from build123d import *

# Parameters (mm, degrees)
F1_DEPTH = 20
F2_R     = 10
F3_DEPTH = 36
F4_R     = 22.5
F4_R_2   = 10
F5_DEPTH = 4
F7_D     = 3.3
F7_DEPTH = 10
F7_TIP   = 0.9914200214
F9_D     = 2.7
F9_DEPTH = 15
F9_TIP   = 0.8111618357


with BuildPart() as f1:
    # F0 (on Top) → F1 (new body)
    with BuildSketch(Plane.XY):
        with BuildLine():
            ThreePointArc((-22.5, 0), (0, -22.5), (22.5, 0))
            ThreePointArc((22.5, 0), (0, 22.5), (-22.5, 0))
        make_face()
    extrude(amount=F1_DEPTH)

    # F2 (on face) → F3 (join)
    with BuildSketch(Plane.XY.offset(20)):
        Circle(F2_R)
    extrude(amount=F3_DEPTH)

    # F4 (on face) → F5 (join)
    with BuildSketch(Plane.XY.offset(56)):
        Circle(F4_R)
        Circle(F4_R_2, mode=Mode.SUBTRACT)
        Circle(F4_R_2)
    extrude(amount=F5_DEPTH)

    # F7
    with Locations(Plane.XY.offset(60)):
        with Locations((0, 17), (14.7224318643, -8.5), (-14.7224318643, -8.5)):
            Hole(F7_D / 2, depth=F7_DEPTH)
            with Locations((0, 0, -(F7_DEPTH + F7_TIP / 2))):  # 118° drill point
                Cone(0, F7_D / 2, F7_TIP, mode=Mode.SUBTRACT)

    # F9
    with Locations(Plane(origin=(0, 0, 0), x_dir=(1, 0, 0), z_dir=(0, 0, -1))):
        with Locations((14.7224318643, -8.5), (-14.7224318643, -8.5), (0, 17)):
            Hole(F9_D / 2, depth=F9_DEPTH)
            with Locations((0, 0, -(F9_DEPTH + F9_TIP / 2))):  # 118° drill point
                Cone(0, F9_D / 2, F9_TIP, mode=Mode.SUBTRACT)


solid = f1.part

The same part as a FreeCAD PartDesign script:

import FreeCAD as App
import Part
import Sketcher

V = App.Vector

doc = App.newDocument("Part")
body = doc.addObject("PartDesign::Body", "Body")

# Sketch on XY plane
sketch1 = body.newObject("Sketcher::SketchObject", "Sketch")
sketch1.AttachmentSupport = (doc.getObject("XY_Plane"), [""])
sketch1.MapMode = "FlatFace"
sketch1.addGeometry(Part.Circle(V(0, 0, 0), V(0, 0, 1), 22), False)
sketch1.addConstraint(Sketcher.Constraint("Coincident", 0, 3, -1, 1))
sketch1.addConstraint(Sketcher.Constraint("Diameter", 0, 45.0))
pad1 = body.newObject("PartDesign::Pad", "Pad")
pad1.Profile = sketch1
pad1.Length = 20

# Sketch on XY plane
sketch2 = body.newObject("Sketcher::SketchObject", "Sketch001")
sketch2.AttachmentSupport = (doc.getObject("XY_Plane"), [""])
sketch2.MapMode = "FlatFace"
sketch2.AttachmentOffset = App.Placement(V(0, 0, 20), App.Rotation())
sketch2.addGeometry(Part.Circle(V(0, 0, 0), V(0, 0, 1), 10), False)
sketch2.addConstraint(Sketcher.Constraint("Coincident", 0, 3, -1, 1))
sketch2.addConstraint(Sketcher.Constraint("Diameter", 0, 20.0))
pad2 = body.newObject("PartDesign::Pad", "Pad001")
pad2.Profile = sketch2
pad2.Length = 36

# Sketch on XY plane
sketch3 = body.newObject("Sketcher::SketchObject", "Sketch002")
sketch3.AttachmentSupport = (doc.getObject("XY_Plane"), [""])
sketch3.MapMode = "FlatFace"
sketch3.AttachmentOffset = App.Placement(V(0, 0, 56), App.Rotation())
sketch3.addGeometry(Part.Circle(V(0, 0, 0), V(0, 0, 1), 22), False)
sketch3.addConstraint(Sketcher.Constraint("Coincident", 0, 3, -1, 1))
sketch3.addConstraint(Sketcher.Constraint("Diameter", 0, 45.0))
pad3 = body.newObject("PartDesign::Pad", "Pad002")
pad3.Profile = sketch3
pad3.Length = 4

# Sketch on XY plane
sketch4 = body.newObject("Sketcher::SketchObject", "Sketch003")
sketch4.AttachmentSupport = (doc.getObject("XY_Plane"), [""])
sketch4.MapMode = "FlatFace"
sketch4.AttachmentOffset = App.Placement(V(0, 0, 60), App.Rotation())
sketch4.addGeometry(Part.Circle(V(0, 17, 0), V(0, 0, 1), 1.6), False)
sketch4.addGeometry(Part.Circle(V(14.7, -8.5, 0), V(0, 0, 1), 1.6), False)
sketch4.addGeometry(Part.Circle(V(-14.7, -8.5, 0), V(0, 0, 1), 1.6), False)
sketch4.addConstraint(Sketcher.Constraint("Equal", 0, 1))
sketch4.addConstraint(Sketcher.Constraint("Equal", 1, 2))
sketch4.addConstraint(Sketcher.Constraint("Symmetric", 1, 3, 2, 3, -2))
sketch4.addConstraint(Sketcher.Constraint("PointOnObject", 0, 3, -2))
sketch4.addConstraint(Sketcher.Constraint("Diameter", 0, 3.3))
sketch4.addConstraint(Sketcher.Constraint("DistanceY", -1, 1, 0, 3, 17.0))
sketch4.addConstraint(Sketcher.Constraint("DistanceY", 1, 3, -1, 1, 8.5))
sketch4.addConstraint(Sketcher.Constraint("DistanceX", -1, 1, 1, 3, 14.722432))
doc.recompute()
hole = body.newObject("PartDesign::Hole", "Hole")
hole.Profile = sketch4
hole.ThreadType = "None"
hole.Diameter = 3.3
hole.DepthType = "Dimension"
hole.Depth = 10
hole.DrillPoint = "Angled"
hole.DrillPointAngle = 118

# Sketch on XY plane
sketch5 = body.newObject("Sketcher::SketchObject", "Sketch004")
sketch5.AttachmentSupport = (doc.getObject("XY_Plane"), [""])
sketch5.MapMode = "FlatFace"
sketch5.addGeometry(Part.Circle(V(14.7, 8.5, 0), V(0, 0, 1), 1.4), False)
sketch5.addGeometry(Part.Circle(V(-14.7, 8.5, 0), V(0, 0, 1), 1.4), False)
sketch5.addGeometry(Part.Circle(V(0, -17, 0), V(0, 0, 1), 1.4), False)
sketch5.addConstraint(Sketcher.Constraint("Equal", 0, 1))
sketch5.addConstraint(Sketcher.Constraint("Equal", 1, 2))
sketch5.addConstraint(Sketcher.Constraint("Symmetric", 0, 3, 1, 3, -2))
sketch5.addConstraint(Sketcher.Constraint("PointOnObject", 2, 3, -2))
sketch5.addConstraint(Sketcher.Constraint("Diameter", 0, 2.7))
sketch5.addConstraint(Sketcher.Constraint("DistanceY", 2, 3, -1, 1, 17.0))
sketch5.addConstraint(Sketcher.Constraint("DistanceY", -1, 1, 0, 3, 8.5))
sketch5.addConstraint(Sketcher.Constraint("DistanceX", -1, 1, 0, 3, 14.722432))
doc.recompute()
hole2 = body.newObject("PartDesign::Hole", "Hole001")
hole2.Profile = sketch5
hole2.ThreadType = "None"
hole2.Diameter = 2.7
hole2.DepthType = "Dimension"
hole2.Depth = 15
hole2.DrillPoint = "Angled"
hole2.DrillPointAngle = 118
hole2.Reversed = True

doc.recompute()
